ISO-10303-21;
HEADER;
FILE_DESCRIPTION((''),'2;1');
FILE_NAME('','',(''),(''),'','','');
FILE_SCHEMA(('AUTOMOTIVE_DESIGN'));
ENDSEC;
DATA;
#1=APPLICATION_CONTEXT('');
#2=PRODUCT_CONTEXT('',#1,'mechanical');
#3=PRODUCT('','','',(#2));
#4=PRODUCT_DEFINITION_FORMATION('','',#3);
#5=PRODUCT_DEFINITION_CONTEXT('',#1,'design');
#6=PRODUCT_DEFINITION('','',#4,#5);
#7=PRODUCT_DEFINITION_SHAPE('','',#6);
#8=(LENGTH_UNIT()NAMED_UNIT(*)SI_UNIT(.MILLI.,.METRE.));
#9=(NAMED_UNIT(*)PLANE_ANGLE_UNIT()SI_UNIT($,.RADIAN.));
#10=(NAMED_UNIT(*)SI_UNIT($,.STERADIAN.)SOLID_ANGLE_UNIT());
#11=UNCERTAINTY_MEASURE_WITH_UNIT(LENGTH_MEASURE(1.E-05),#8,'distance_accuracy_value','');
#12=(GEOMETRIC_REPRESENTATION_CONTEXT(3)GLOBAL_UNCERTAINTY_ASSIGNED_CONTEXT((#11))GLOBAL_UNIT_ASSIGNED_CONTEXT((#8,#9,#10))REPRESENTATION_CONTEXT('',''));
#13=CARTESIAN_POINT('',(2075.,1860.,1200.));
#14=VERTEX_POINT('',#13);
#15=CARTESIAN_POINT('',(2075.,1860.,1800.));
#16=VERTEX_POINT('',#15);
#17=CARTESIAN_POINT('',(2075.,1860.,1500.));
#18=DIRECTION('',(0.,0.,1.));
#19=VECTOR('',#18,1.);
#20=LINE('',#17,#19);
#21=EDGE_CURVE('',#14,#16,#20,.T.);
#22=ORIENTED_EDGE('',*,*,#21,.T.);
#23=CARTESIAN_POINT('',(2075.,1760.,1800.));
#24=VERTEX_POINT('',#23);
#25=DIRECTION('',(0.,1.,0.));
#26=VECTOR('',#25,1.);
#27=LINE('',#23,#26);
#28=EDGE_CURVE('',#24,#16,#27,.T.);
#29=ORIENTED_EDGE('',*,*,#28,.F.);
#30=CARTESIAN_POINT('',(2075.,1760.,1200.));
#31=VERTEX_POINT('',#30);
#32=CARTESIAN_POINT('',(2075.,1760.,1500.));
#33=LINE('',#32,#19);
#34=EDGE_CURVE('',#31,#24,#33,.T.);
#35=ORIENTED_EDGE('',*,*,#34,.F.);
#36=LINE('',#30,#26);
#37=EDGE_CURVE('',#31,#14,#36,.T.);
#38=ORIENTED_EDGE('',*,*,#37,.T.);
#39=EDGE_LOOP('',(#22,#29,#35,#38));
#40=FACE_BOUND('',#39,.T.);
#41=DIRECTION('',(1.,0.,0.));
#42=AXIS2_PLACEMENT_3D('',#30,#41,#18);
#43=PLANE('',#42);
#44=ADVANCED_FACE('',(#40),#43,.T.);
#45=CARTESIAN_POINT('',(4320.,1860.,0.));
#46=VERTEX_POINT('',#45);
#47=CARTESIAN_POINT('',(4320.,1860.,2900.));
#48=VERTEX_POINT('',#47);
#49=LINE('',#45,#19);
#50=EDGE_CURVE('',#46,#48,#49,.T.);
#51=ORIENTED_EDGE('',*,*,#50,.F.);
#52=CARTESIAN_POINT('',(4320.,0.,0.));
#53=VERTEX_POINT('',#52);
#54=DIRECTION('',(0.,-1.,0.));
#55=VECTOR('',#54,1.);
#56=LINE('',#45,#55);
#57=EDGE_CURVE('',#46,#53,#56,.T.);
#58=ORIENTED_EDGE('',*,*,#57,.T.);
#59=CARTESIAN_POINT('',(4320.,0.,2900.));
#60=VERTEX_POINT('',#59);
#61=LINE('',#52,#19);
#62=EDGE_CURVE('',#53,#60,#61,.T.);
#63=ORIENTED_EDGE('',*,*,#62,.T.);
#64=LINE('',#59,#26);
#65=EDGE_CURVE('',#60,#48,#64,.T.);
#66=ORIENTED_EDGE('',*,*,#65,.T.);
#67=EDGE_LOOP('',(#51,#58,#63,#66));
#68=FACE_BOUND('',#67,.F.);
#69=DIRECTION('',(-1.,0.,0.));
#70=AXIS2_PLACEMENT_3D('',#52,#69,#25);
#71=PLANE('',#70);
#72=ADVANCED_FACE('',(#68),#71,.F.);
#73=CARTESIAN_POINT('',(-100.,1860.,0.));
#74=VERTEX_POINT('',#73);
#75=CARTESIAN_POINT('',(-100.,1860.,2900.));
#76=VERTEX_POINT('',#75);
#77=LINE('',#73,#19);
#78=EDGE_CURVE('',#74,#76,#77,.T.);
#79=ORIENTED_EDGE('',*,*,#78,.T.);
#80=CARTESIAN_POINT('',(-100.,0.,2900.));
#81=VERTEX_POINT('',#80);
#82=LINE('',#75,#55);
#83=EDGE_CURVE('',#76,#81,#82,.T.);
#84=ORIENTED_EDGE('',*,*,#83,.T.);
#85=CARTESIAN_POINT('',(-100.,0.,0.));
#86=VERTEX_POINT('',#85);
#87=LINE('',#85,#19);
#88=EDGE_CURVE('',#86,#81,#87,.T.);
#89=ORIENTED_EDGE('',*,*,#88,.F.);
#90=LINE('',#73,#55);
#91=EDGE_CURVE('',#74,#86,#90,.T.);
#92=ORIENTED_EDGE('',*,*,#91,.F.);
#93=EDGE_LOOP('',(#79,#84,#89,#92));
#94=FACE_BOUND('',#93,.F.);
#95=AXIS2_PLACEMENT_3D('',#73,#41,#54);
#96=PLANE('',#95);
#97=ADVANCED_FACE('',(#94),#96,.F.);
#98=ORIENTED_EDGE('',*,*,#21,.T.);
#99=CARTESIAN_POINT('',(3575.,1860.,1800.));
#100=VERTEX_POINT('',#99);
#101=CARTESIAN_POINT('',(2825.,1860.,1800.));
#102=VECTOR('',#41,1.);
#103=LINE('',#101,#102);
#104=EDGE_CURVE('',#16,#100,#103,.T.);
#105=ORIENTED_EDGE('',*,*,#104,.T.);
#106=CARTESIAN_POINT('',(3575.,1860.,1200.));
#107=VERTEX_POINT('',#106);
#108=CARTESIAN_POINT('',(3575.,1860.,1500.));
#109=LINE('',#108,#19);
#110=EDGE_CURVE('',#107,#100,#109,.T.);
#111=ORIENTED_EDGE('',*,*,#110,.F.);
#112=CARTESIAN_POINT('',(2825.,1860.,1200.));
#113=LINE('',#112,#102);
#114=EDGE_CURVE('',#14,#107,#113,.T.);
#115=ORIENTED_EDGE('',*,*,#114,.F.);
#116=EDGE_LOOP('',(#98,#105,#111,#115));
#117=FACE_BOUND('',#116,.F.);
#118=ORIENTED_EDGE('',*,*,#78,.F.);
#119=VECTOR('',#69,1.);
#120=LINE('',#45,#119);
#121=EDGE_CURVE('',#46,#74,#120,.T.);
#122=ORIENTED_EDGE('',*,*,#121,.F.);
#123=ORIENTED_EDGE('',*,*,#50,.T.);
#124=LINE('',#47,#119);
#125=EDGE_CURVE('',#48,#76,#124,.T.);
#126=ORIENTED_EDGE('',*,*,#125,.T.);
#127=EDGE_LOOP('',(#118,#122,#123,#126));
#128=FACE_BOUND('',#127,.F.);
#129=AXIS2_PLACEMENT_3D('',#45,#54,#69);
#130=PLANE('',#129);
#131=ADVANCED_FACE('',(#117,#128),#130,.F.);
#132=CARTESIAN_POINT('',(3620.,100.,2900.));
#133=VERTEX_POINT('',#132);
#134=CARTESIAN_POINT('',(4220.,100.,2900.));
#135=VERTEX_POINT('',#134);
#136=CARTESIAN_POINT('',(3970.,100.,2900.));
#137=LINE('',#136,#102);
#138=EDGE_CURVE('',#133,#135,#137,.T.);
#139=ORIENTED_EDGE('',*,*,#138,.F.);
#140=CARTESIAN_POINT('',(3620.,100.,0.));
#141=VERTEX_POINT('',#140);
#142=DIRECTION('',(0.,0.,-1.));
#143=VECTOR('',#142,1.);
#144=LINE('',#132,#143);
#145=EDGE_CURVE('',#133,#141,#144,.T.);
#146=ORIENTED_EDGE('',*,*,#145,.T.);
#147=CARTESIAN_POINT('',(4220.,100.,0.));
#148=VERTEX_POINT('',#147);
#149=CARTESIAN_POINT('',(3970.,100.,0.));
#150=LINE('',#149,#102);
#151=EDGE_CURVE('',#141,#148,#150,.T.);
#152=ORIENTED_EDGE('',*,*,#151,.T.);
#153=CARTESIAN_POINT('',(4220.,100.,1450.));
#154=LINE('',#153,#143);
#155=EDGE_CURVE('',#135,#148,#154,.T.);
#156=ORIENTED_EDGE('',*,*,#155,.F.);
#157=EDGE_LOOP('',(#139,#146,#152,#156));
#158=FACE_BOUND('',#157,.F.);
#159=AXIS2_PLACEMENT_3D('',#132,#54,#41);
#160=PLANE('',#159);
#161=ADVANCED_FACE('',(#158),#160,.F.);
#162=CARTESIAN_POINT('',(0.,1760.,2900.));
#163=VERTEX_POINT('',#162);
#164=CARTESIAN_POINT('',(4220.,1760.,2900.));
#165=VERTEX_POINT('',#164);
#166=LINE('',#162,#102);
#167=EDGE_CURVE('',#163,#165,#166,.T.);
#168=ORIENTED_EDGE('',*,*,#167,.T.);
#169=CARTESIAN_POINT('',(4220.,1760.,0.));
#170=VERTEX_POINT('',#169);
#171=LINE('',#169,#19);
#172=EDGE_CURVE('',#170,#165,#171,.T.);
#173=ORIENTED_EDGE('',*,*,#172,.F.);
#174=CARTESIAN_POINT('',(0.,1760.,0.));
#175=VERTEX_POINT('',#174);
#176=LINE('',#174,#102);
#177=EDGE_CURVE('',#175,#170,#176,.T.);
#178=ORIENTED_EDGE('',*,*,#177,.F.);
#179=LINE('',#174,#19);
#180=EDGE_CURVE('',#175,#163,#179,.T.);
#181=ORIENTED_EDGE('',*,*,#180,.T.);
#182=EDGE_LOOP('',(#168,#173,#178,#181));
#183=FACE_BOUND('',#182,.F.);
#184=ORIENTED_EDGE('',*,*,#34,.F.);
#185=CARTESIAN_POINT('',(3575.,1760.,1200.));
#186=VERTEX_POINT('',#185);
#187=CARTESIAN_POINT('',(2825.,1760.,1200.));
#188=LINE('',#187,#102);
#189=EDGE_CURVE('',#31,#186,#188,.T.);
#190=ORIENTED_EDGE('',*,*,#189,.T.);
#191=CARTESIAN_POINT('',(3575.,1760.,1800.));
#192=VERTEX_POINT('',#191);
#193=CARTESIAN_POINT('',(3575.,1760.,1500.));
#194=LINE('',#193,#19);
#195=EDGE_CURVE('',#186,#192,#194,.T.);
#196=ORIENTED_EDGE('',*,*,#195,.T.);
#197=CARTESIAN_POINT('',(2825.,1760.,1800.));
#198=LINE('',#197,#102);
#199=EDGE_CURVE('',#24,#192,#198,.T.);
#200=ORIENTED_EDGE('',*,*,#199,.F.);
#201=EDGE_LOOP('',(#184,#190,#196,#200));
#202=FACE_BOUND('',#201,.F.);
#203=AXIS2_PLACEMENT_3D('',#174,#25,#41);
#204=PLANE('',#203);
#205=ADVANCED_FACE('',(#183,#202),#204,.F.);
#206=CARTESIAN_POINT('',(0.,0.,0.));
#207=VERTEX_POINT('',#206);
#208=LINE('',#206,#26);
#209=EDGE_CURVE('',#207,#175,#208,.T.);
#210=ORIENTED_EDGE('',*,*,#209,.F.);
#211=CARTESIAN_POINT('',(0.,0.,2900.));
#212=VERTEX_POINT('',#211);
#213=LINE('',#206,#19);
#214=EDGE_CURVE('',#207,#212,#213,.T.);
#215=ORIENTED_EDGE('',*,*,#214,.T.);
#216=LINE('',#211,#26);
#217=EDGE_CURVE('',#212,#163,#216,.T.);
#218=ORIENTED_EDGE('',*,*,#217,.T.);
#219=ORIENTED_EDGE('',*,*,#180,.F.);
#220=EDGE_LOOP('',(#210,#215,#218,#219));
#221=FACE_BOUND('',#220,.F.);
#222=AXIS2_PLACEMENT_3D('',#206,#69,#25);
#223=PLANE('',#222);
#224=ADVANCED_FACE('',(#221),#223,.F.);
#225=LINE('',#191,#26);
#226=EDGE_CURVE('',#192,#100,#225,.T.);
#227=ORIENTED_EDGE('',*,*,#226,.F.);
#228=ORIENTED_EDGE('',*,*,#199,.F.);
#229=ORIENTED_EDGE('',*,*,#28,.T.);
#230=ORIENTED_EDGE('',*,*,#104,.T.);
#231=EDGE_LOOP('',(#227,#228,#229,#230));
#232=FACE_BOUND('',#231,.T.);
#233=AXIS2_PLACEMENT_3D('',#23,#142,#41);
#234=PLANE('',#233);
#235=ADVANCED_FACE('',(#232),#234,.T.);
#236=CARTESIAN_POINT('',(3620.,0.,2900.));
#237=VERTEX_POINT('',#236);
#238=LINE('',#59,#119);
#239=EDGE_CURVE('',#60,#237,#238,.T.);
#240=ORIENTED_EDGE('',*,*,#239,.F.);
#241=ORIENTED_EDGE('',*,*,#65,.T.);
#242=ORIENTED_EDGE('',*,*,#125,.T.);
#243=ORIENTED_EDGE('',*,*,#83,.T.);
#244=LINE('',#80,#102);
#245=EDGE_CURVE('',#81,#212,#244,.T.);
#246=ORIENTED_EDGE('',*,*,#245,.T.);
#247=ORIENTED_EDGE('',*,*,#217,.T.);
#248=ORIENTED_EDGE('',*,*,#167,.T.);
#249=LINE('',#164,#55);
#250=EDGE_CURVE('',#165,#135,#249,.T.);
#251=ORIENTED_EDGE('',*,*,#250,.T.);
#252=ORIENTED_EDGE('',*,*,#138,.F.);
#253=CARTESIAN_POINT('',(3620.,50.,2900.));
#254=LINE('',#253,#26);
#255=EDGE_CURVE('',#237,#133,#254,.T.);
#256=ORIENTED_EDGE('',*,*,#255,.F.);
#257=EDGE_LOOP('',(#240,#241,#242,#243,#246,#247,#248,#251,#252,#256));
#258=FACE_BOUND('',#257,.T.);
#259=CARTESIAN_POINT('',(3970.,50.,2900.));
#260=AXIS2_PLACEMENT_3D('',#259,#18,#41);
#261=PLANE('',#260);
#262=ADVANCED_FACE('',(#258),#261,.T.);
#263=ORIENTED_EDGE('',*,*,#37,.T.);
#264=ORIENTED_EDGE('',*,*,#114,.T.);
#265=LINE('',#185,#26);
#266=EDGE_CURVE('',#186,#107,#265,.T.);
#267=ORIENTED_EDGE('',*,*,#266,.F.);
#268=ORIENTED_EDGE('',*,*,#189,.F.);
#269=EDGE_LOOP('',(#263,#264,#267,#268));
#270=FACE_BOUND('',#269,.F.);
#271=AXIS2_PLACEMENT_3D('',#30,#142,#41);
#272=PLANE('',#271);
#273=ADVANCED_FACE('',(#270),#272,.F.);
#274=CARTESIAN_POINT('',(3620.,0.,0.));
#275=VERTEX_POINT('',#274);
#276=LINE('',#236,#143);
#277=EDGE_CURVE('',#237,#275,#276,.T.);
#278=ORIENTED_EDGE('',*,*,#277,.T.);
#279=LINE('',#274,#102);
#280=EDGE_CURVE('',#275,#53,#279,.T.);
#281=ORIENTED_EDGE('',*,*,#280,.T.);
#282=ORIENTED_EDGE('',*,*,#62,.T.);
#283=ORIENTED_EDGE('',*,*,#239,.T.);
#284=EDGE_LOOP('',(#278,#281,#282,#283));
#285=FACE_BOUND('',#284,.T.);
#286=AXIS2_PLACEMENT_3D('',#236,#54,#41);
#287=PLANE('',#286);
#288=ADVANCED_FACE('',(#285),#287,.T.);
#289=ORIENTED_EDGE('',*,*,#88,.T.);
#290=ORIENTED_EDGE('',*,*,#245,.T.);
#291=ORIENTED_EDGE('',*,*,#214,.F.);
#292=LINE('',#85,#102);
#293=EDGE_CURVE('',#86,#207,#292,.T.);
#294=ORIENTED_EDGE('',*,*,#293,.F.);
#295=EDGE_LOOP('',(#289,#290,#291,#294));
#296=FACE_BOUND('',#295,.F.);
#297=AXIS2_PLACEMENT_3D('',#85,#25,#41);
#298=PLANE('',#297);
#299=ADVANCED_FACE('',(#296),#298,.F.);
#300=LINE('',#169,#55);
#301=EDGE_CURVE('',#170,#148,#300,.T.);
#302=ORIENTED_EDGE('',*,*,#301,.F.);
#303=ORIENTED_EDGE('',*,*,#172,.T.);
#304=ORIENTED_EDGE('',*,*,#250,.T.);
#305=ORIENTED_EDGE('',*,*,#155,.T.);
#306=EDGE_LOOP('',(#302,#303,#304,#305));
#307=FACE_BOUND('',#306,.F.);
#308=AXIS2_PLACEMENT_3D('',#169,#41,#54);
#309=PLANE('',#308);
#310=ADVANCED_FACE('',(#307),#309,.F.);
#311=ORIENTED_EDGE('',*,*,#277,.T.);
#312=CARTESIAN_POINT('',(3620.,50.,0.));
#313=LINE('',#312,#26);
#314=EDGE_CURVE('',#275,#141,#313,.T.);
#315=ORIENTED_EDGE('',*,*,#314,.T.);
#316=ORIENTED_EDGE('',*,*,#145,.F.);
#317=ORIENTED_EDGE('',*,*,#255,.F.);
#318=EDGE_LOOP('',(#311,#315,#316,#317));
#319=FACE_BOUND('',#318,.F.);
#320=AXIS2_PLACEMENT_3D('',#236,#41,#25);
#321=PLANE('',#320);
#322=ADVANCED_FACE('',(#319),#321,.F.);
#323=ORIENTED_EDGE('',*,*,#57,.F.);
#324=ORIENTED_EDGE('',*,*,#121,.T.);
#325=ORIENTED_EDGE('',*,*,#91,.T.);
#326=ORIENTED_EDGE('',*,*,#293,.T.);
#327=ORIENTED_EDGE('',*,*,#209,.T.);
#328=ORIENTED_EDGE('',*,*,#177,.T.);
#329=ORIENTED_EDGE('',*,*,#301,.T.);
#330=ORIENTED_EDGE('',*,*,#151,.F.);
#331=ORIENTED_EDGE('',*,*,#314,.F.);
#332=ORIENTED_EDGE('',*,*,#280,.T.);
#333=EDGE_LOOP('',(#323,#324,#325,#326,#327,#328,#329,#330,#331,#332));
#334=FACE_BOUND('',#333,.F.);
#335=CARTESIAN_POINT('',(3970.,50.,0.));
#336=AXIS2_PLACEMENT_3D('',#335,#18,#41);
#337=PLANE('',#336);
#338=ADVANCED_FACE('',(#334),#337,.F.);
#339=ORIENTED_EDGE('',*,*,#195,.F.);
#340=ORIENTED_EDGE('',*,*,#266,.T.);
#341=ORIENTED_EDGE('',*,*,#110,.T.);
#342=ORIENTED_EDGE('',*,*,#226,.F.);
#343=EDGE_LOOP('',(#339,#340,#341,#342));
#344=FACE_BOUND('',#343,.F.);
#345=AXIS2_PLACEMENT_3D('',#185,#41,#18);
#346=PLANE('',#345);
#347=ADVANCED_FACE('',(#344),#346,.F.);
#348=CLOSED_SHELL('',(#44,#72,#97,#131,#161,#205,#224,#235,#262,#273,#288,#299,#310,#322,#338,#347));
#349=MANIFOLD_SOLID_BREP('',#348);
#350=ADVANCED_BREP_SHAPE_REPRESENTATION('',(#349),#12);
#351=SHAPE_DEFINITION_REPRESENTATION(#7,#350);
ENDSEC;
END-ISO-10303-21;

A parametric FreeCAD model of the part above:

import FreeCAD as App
import Part
import Sketcher
from FreeCAD import Vector
Q = App.Units.Quantity


def add_polygon(sketch, points):
    """Adds a closed chain of lines whose ends are joined by coincident constraints."""
    first, n = sketch.GeometryCount, len(points)
    for a, b in zip(points, points[1:] + points[:1]):
        sketch.addGeometry(Part.LineSegment(App.Vector(*a, 0), App.Vector(*b, 0)), False)
    for i in range(n):
        sketch.addConstraint(Sketcher.Constraint("Coincident", first + i, 2, first + (i + 1) % n, 1))

doc = App.newDocument("Part")
params = doc.addObject("Spreadsheet::Sheet", "Params")
for row, (alias, value) in enumerate([
    ("sketch1_width", "100 mm"),
    ("sketch1_width2", "4220 mm"),
    ("sketch1_height", "1760 mm"),
    ("sketch1_height2", "1860 mm"),
    ("pad1_length", "2900 mm"),
    ("sketch2_width", "1500 mm"),
    ("sketch2_height", "600 mm"),
    ("sketch3_width", "700 mm"),
    ("sketch3_height", "100 mm"),
    ("pad2_length", "2900 mm"),
], start=1):
    params.set(f"A{row}", alias)
    params.set(f"B{row}", "=" + value)
    params.setAlias(f"B{row}", alias)

body = doc.addObject("PartDesign::Body", "Body")

# Sketch on XY plane
sketch1 = doc.addObject("Sketcher::SketchObject", "Sketch")
body.addObject(sketch1)
sketch1.AttachmentSupport = (doc.XY_Plane, [""])
sketch1.MapMode = "FlatFace"
add_polygon(sketch1, [(-100, 0), (0, 0), (0, 1760), (4220, 1760), (4220, 0), (4320, 0), (4320, 1860), (-100, 1860)])  # lines 0-7
sketch1.addConstraint(Sketcher.Constraint("Horizontal", 0))
sketch1.addConstraint(Sketcher.Constraint("Vertical", 1))
sketch1.addConstraint(Sketcher.Constraint("Horizontal", 2))
sketch1.addConstraint(Sketcher.Constraint("Vertical", 3))
sketch1.addConstraint(Sketcher.Constraint("Horizontal", 4))
sketch1.addConstraint(Sketcher.Constraint("Vertical", 5))
sketch1.addConstraint(Sketcher.Constraint("Horizontal", 6))
sketch1.addConstraint(Sketcher.Constraint("Vertical", 7))
sketch1.addConstraint(Sketcher.Constraint("Coincident", 0, 2, -1, 1))
sketch1.addConstraint(Sketcher.Constraint("PointOnObject", 3, 2, -1))
sketch1.addConstraint(Sketcher.Constraint("Equal", 0, 4))
sketch1.addConstraint(Sketcher.Constraint("DistanceX", 0, 1, 0, 2, Q("100 mm")))
sketch1.addConstraint(Sketcher.Constraint("DistanceX", 2, 1, 2, 2, Q("4220 mm")))
sketch1.addConstraint(Sketcher.Constraint("DistanceY", 1, 1, 1, 2, Q("1760 mm")))
sketch1.addConstraint(Sketcher.Constraint("DistanceY", 5, 1, 5, 2, Q("1860 mm")))
sketch1.setExpression("Constraints[19]", "Params.sketch1_width")
sketch1.setExpression("Constraints[20]", "Params.sketch1_width2")
sketch1.setExpression("Constraints[21]", "Params.sketch1_height")
sketch1.setExpression("Constraints[22]", "Params.sketch1_height2")
pad1 = doc.addObject("PartDesign::Pad", "Pad")
body.addObject(pad1)
pad1.Profile = sketch1
pad1.setExpression("Length", "Params.pad1_length")

# Sketch on XZ plane
sketch2 = doc.addObject("Sketcher::SketchObject", "Sketch001")
body.addObject(sketch2)
sketch2.AttachmentSupport = (doc.XZ_Plane, [""])
sketch2.MapMode = "FlatFace"
sketch2.AttachmentOffset = App.Placement(Vector(0, 0, -1760), App.Rotation())
add_polygon(sketch2, [(2075, 1800), (2075, 1200), (3575, 1200), (3575, 1800)])  # lines 0-3
sketch2.addConstraint(Sketcher.Constraint("Vertical", 0))
sketch2.addConstraint(Sketcher.Constraint("Horizontal", 1))
sketch2.addConstraint(Sketcher.Constraint("Vertical", 2))
sketch2.addConstraint(Sketcher.Constraint("Horizontal", 3))
sketch2.addConstraint(Sketcher.Constraint("DistanceX", 1, 1, 1, 2, Q("1500 mm")))
sketch2.addConstraint(Sketcher.Constraint("DistanceY", 0, 2, 0, 1, Q("600 mm")))
sketch2.addConstraint(Sketcher.Constraint("DistanceX", -1, 1, 0, 2, Q("2075 mm")))
sketch2.addConstraint(Sketcher.Constraint("DistanceY", -1, 1, 0, 2, Q("1200 mm")))
sketch2.setExpression("Constraints[8]", "Params.sketch2_width")
sketch2.setExpression("Constraints[9]", "Params.sketch2_height")
pocket1 = doc.addObject("PartDesign::Pocket", "Pocket")
body.addObject(pocket1)
pocket1.Profile = sketch2
pocket1.Type = "ThroughAll"

# Sketch on XY plane
sketch3 = doc.addObject("Sketcher::SketchObject", "Sketch002")
body.addObject(sketch3)
sketch3.AttachmentSupport = (doc.XY_Plane, [""])
sketch3.MapMode = "FlatFace"
sketch3.AttachmentOffset = App.Placement(Vector(0, 0, 2900), App.Rotation())
add_polygon(sketch3, [(3620, 100), (3620, 0), (4320, 0), (4320, 100)])  # lines 0-3
sketch3.addConstraint(Sketcher.Constraint("Vertical", 0))
sketch3.addConstraint(Sketcher.Constraint("Horizontal", 1))
sketch3.addConstraint(Sketcher.Constraint("Vertical", 2))
sketch3.addConstraint(Sketcher.Constraint("Horizontal", 3))
sketch3.addConstraint(Sketcher.Constraint("PointOnObject", 0, 2, -1))
sketch3.addConstraint(Sketcher.Constraint("DistanceX", 1, 1, 1, 2, Q("700 mm")))
sketch3.addConstraint(Sketcher.Constraint("DistanceY", 0, 2, 0, 1, Q("100 mm")))
sketch3.addConstraint(Sketcher.Constraint("DistanceX", -1, 1, 0, 2, Q("3620 mm")))
sketch3.setExpression("Constraints[9]", "Params.sketch3_width")
sketch3.setExpression("Constraints[10]", "Params.sketch3_height")
pad2 = doc.addObject("PartDesign::Pad", "Pad001")
body.addObject(pad2)
pad2.Profile = sketch3
pad2.setExpression("Length", "Params.pad2_length")
pad2.Reversed = True

doc.recompute()
